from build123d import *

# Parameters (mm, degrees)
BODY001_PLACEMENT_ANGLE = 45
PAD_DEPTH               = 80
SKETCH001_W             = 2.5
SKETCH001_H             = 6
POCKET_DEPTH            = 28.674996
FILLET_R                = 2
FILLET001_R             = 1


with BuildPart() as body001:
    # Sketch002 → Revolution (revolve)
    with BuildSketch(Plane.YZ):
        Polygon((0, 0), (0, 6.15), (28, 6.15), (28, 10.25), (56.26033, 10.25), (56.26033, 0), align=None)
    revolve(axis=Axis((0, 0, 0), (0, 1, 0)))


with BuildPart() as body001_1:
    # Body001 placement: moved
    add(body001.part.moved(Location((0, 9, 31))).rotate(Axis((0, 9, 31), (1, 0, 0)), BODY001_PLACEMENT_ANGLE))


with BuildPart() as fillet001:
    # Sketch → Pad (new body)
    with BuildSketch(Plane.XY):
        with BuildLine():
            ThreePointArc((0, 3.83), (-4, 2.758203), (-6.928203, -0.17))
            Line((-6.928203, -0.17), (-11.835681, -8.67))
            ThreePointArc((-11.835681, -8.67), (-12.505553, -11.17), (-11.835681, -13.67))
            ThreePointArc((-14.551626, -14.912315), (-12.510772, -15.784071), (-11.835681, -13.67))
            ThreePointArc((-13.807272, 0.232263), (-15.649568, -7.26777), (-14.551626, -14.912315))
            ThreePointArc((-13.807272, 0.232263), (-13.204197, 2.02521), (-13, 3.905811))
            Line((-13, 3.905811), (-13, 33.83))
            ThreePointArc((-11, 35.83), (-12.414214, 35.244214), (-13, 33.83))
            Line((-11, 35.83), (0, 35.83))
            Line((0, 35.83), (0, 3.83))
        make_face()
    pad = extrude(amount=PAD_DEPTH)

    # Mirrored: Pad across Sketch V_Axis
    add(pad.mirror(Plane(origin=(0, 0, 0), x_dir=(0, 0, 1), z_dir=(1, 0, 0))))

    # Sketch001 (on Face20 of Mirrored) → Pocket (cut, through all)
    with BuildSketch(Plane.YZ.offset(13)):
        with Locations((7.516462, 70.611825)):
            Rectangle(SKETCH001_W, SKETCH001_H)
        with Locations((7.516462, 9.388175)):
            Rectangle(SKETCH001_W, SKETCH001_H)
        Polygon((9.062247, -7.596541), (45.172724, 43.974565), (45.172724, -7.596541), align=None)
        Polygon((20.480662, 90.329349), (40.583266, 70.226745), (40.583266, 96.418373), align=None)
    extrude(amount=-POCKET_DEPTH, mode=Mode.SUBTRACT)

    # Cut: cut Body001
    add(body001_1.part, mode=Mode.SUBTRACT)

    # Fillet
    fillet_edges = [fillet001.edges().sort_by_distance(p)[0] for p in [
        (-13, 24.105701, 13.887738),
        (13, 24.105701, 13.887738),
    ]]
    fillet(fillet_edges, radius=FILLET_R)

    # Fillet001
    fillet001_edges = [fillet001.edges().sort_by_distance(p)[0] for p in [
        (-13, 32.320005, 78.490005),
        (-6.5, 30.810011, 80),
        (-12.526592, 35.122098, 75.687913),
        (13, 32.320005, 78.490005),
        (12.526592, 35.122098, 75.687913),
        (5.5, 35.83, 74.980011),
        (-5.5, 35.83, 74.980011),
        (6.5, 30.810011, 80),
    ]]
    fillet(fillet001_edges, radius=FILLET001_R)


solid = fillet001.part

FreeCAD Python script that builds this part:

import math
import FreeCAD as App
import Part
import Sketcher
Q = App.Units.Quantity


def edges_at(feature, points):
    """Names of the edges that pass closest to the given points."""
    edges = feature.Shape.Edges
    near = lambda p: min(range(len(edges)), key=lambda i: edges[i].distToShape(Part.Vertex(*p))[0])
    return sorted({f"Edge{near(p) + 1}" for p in points})

doc = App.newDocument("Part")
body = doc.addObject("PartDesign::Body", "Body")

sketch1 = body.newObject("Sketcher::SketchObject", "Sketch")
sketch1.AttachmentSupport = (doc.getObject("YZ_Plane"), [""])
sketch1.MapMode = "FlatFace"
sketch1.addGeometry(Part.LineSegment(App.Vector(0, 6.15, 0), App.Vector(0, 0, 0)), False)
sketch1.addGeometry(Part.LineSegment(App.Vector(0, 0, 0), App.Vector(56.26033, 0, 0)), False)
sketch1.addGeometry(Part.LineSegment(App.Vector(56.26033, 0, 0), App.Vector(56.26033, 10.25, 0)), False)
sketch1.addGeometry(Part.LineSegment(App.Vector(56.26033, 10.25, 0), App.Vector(28, 10.25, 0)), False)
sketch1.addGeometry(Part.LineSegment(App.Vector(28, 10.25, 0), App.Vector(28, 6.15, 0)), False)
sketch1.addGeometry(Part.LineSegment(App.Vector(28, 6.15, 0), App.Vector(0, 6.15, 0)), False)
sketch1.addConstraint(Sketcher.Constraint("Coincident", 0, 2, 1, 1))
sketch1.addConstraint(Sketcher.Constraint("Coincident", 1, 2, 2, 1))
sketch1.addConstraint(Sketcher.Constraint("Coincident", 2, 2, 3, 1))
sketch1.addConstraint(Sketcher.Constraint("Coincident", 3, 2, 4, 1))
sketch1.addConstraint(Sketcher.Constraint("Coincident", 4, 2, 5, 1))
sketch1.addConstraint(Sketcher.Constraint("Coincident", 5, 2, 0, 1))
sketch1.addConstraint(Sketcher.Constraint("Vertical", 0))
sketch1.addConstraint(Sketcher.Constraint("Horizontal", 1))
sketch1.addConstraint(Sketcher.Constraint("Vertical", 2))
sketch1.addConstraint(Sketcher.Constraint("Horizontal", 3))
sketch1.addConstraint(Sketcher.Constraint("Vertical", 4))
sketch1.addConstraint(Sketcher.Constraint("Horizontal", 5))
sketch1.addConstraint(Sketcher.Constraint("Coincident", 0, 2, -1, 1))
sketch1.addConstraint(Sketcher.Constraint("DistanceX", 5, 2, 5, 1, Q("28 mm")))
sketch1.addConstraint(Sketcher.Constraint("DistanceY", 4, 2, 4, 1, Q("4.1 mm")))
sketch1.addConstraint(Sketcher.Constraint("DistanceY", 0, 2, 0, 1, Q("6.15 mm")))
sketch1.addConstraint(Sketcher.Constraint("DistanceX", 1, 1, 1, 2, Q("56.26033 mm")))
revolution = body.newObject("PartDesign::Revolution", "Revolution")
revolution.Profile = sketch1
revolution.ReferenceAxis = (sketch1, ["H_Axis"])
revolution.Angle = 360
body2 = doc.addObject("PartDesign::Body", "Body001")
doc.recompute()

body.Placement = App.Placement(App.Vector(0, 9, 31), App.Rotation(App.Vector(1, 0, 0), 45))
boolean = body2.newObject("PartDesign::Boolean", "Boolean")
boolean.Type = "Fuse"
boolean.addObjects([body])
body3 = doc.addObject("PartDesign::Body", "Body002")

sketch2 = body3.newObject("Sketcher::SketchObject", "Sketch001")
sketch2.AttachmentSupport = (doc.getObject("XY_Plane002"), [""])
sketch2.MapMode = "FlatFace"
sketch2.addGeometry(Part.ArcOfCircle(Part.Circle(App.Vector(0.000001, -4.170001, 0), App.Vector(0, 0, 1), 8.000001), math.radians(90.000004), math.radians(149.999998)), False)
sketch2.addGeometry(Part.LineSegment(App.Vector(0, 3.83, 0), App.Vector(0, 35.83, 0)), False)
sketch2.addGeometry(Part.LineSegment(App.Vector(0, 35.83, 0), App.Vector(-11, 35.83, 0)), False)
sketch2.addGeometry(Part.ArcOfCircle(Part.Circle(App.Vector(-11.000001, 33.830001, 0), App.Vector(0, 0, 1), 1.999999), math.radians(89.999957), math.radians(180.000043)), False)
sketch2.addGeometry(Part.LineSegment(App.Vector(-13, 33.83, 0), App.Vector(-13, 3.905811, 0)), False)
sketch2.addGeometry(Part.ArcOfCircle(Part.Circle(App.Vector(-21.76199, 3.905808, 0), App.Vector(0, 0, 1), 8.76199), math.radians(-24.787824), math.radians(0.000021)), False)
sketch2.addGeometry(Part.ArcOfCircle(Part.Circle(App.Vector(4.587165, -8.262403, 0), App.Vector(0, 0, 1), 20.261161), math.radians(155.212213), math.radians(199.160156)), False)
sketch2.addGeometry(Part.ArcOfCircle(Part.Circle(App.Vector(-13.134719, -14.42, 0), App.Vector(0, 0, 1), 1.5), math.radians(-160.839831), math.radians(30.000001)), False)
sketch2.addGeometry(Part.ArcOfCircle(Part.Circle(App.Vector(-7.505547, -11.17, 0), App.Vector(0, 0, 1), 5.000006), math.radians(150.000042), math.radians(209.999958)), False)
sketch2.addGeometry(Part.LineSegment(App.Vector(-11.835681, -8.67, 0), App.Vector(-6.928203, -0.17, 0)), False)
sketch2.addConstraint(Sketcher.Constraint("Coincident", 0, 1, 1, 1))
sketch2.addConstraint(Sketcher.Constraint("Coincident", 1, 2, 2, 1))
sketch2.addConstraint(Sketcher.Constraint("Tangent", 2, 2, 3, 1))
sketch2.addConstraint(Sketcher.Constraint("Tangent", 3, 2, 4, 1))
sketch2.addConstraint(Sketcher.Constraint("Tangent", 4, 2, 5, 2))
sketch2.addConstraint(Sketcher.Constraint("Tangent", 5, 1, 6, 1))
sketch2.addConstraint(Sketcher.Constraint("Tangent", 6, 2, 7, 1))
sketch2.addConstraint(Sketcher.Constraint("Tangent", 7, 2, 8, 2))
sketch2.addConstraint(Sketcher.Constraint("Tangent", 8, 1, 9, 1))
sketch2.addConstraint(Sketcher.Constraint("Tangent", 9, 2, 0, 2))
sketch2.addConstraint(Sketcher.Constraint("Vertical", 1))
sketch2.addConstraint(Sketcher.Constraint("Horizontal", 2))
sketch2.addConstraint(Sketcher.Constraint("Vertical", 4))
sketch2.addConstraint(Sketcher.Constraint("PointOnObject", 0, 3, -2))
sketch2.addConstraint(Sketcher.Constraint("PointOnObject", 0, 1, -2))
sketch2.addConstraint(Sketcher.Constraint("Vertical", 7, 2, 8, 1))
sketch2.addConstraint(Sketcher.Constraint("Radius", 0, Q("8.000001 mm")))
sketch2.addConstraint(Sketcher.Constraint("Radius", 3, Q("1.999999 mm")))
sketch2.addConstraint(Sketcher.Constraint("Radius", 7, Q("1.5 mm")))
sketch2.addConstraint(Sketcher.Constraint("DistanceX", 2, 2, 2, 1, Q("11 mm")))
sketch2.addConstraint(Sketcher.Constraint("DistanceY", 1, 1, 1, 2, Q("32 mm")))
sketch2.addConstraint(Sketcher.Constraint("Angle", 9, Q("59.999996 deg")))
sketch2.addConstraint(Sketcher.Constraint("DistanceY", 8, 3, 0, 3, Q("6.999999 mm")))
sketch2.addConstraint(Sketcher.Constraint("DistanceY", 7, 2, 8, 1, Q("5 mm")))
sketch2.addConstraint(Sketcher.Constraint("DistanceY", 0, 3, -1, 1, Q("4.170001 mm")))
sketch2.addConstraint(Sketcher.Constraint("Radius", 5, Q("8.76199 mm")))
sketch2.addConstraint(Sketcher.Constraint("Radius", 6, Q("20.261161 mm")))
sketch2.addConstraint(Sketcher.Constraint("DistanceY", 4, 2, 4, 1, Q("29.924189 mm")))
pad1 = body3.newObject("PartDesign::Pad", "Pad")
pad1.Profile = sketch2
pad1.Length = 80
doc.recompute()

mirrored = body3.newObject("PartDesign::Mirrored", "Mirrored")
mirrored.Originals = [pad1]
mirrored.MirrorPlane = (doc.getObject("YZ_Plane002"), [""])
body3.Tip = mirrored

sketch3 = body3.newObject("Sketcher::SketchObject", "Sketch002")
sketch3.AttachmentSupport = (doc.getObject("YZ_Plane002"), [""])
sketch3.MapMode = "FlatFace"
sketch3.AttachmentOffset = App.Placement(App.Vector(0, 0, 13), App.Rotation())
sketch3.addGeometry(Part.LineSegment(App.Vector(6.266462, 73.611825, 0), App.Vector(6.266462, 67.611825, 0)), False)
sketch3.addGeometry(Part.LineSegment(App.Vector(6.266462, 67.611825, 0), App.Vector(8.766462, 67.611825, 0)), False)
sketch3.addGeometry(Part.LineSegment(App.Vector(8.766462, 67.611825, 0), App.Vector(8.766462, 73.611825, 0)), False)
sketch3.addGeometry(Part.LineSegment(App.Vector(8.766462, 73.611825, 0), App.Vector(6.266462, 73.611825, 0)), False)
sketch3.addGeometry(Part.LineSegment(App.Vector(6.266462, 12.388175, 0), App.Vector(6.266462, 6.388175, 0)), False)
sketch3.addGeometry(Part.LineSegment(App.Vector(6.266462, 6.388175, 0), App.Vector(8.766462, 6.388175, 0)), False)
sketch3.addGeometry(Part.LineSegment(App.Vector(8.766462, 6.388175, 0), App.Vector(8.766462, 12.388175, 0)), False)
sketch3.addGeometry(Part.LineSegment(App.Vector(8.766462, 12.388175, 0), App.Vector(6.266462, 12.388175, 0)), False)
sketch3.addGeometry(Part.LineSegment(App.Vector(45.172724, 43.974565, 0), App.Vector(9.062247, -7.596541, 0)), False)
sketch3.addGeometry(Part.LineSegment(App.Vector(9.062247, -7.596541, 0), App.Vector(45.172724, -7.596541, 0)), False)
sketch3.addGeometry(Part.LineSegment(App.Vector(45.172724, -7.596541, 0), App.Vector(45.172724, 43.974565, 0)), False)
sketch3.addGeometry(Part.LineSegment(App.Vector(20.480662, 90.329349, 0), App.Vector(40.583266, 70.226745, 0)), False)
sketch3.addGeometry(Part.LineSegment(App.Vector(40.583266, 70.226745, 0), App.Vector(40.583266, 96.418373, 0)), False)
sketch3.addGeometry(Part.LineSegment(App.Vector(40.583266, 96.418373, 0), App.Vector(20.480662, 90.329349, 0)), False)
sketch3.addConstraint(Sketcher.Constraint("Coincident", 0, 2, 1, 1))
sketch3.addConstraint(Sketcher.Constraint("Coincident", 1, 2, 2, 1))
sketch3.addConstraint(Sketcher.Constraint("Coincident", 2, 2, 3, 1))
sketch3.addConstraint(Sketcher.Constraint("Coincident", 3, 2, 0, 1))
sketch3.addConstraint(Sketcher.Constraint("Coincident", 4, 2, 5, 1))
sketch3.addConstraint(Sketcher.Constraint("Coincident", 5, 2, 6, 1))
sketch3.addConstraint(Sketcher.Constraint("Coincident", 6, 2, 7, 1))
sketch3.addConstraint(Sketcher.Constraint("Coincident", 7, 2, 4, 1))
sketch3.addConstraint(Sketcher.Constraint("Coincident", 8, 2, 9, 1))
sketch3.addConstraint(Sketcher.Constraint("Coincident", 9, 2, 10, 1))
sketch3.addConstraint(Sketcher.Constraint("Coincident", 10, 2, 8, 1))
sketch3.addConstraint(Sketcher.Constraint("Coincident", 11, 2, 12, 1))
sketch3.addConstraint(Sketcher.Constraint("Coincident", 12, 2, 13, 1))
sketch3.addConstraint(Sketcher.Constraint("Coincident", 13, 2, 11, 1))
sketch3.addConstraint(Sketcher.Constraint("Vertical", 0))
sketch3.addConstraint(Sketcher.Constraint("Horizontal", 1))
sketch3.addConstraint(Sketcher.Constraint("Vertical", 2))
sketch3.addConstraint(Sketcher.Constraint("Horizontal", 3))
sketch3.addConstraint(Sketcher.Constraint("Vertical", 4))
sketch3.addConstraint(Sketcher.Constraint("Horizontal", 5))
sketch3.addConstraint(Sketcher.Constraint("Vertical", 6))
sketch3.addConstraint(Sketcher.Constraint("Horizontal", 7))
sketch3.addConstraint(Sketcher.Constraint("Horizontal", 9))
sketch3.addConstraint(Sketcher.Constraint("Vertical", 10))
sketch3.addConstraint(Sketcher.Constraint("Vertical", 12))
sketch3.addConstraint(Sketcher.Constraint("Vertical", 3, 2, 4, 2))
sketch3.addConstraint(Sketcher.Constraint("Vertical", 2, 2, 5, 2))
sketch3.addConstraint(Sketcher.Constraint("Equal", 2, 4))
sketch3.addConstraint(Sketcher.Constraint("DistanceY", 0, 2, 0, 1, Q("6 mm")))
sketch3.addConstraint(Sketcher.Constraint("Angle", 8, Q("-125 deg")))
sketch3.addConstraint(Sketcher.Constraint("Angle", 11, Q("-45 deg")))
sketch3.addConstraint(Sketcher.Constraint("DistanceX", 1, 1, 1, 2, Q("2.5 mm")))
sketch3.addConstraint(Sketcher.Constraint("DistanceY", 12, 1, 12, 2, Q("26.191628 mm")))
sketch3.addConstraint(Sketcher.Constraint("DistanceX", 2, 2, 13, 2, Q("11.7142 mm")))
sketch3.addConstraint(Sketcher.Constraint("DistanceX", 9, 1, 9, 2, Q("36.110477 mm")))
sketch3.addConstraint(Sketcher.Constraint("DistanceX", -1, 1, 0, 2, Q("6.266462 mm")))
sketch3.addConstraint(Sketcher.Constraint("DistanceY", 8, 2, -1, 1, Q("7.596541 mm")))
sketch3.addConstraint(Sketcher.Constraint("DistanceY", -1, 1, 13, 2, Q("90.329349 mm")))
sketch3.addConstraint(Sketcher.Constraint("DistanceY", 4, 2, 0, 2, Q("61.22365 mm")))
sketch3.addConstraint(Sketcher.Constraint("DistanceX", 5, 2, 9, 2, Q("36.406262 mm")))
sketch3.addConstraint(Sketcher.Constraint("DistanceY", 10, 2, 1, 2, Q("23.63726 mm")))
sketch3.addConstraint(Sketcher.Constraint("DistanceX", 11, 2, 10, 2, Q("4.589458 mm")))
pocket1 = body3.newObject("PartDesign::Pocket", "Pocket")
pocket1.Profile = sketch3
pocket1.Type = "ThroughAll"
doc.recompute()

boolean2 = body3.newObject("PartDesign::Boolean", "Boolean001")
boolean2.Type = "Cut"
boolean2.addObjects([body2])
doc.recompute()

fillet = body3.newObject("PartDesign::Fillet", "Fillet")
fillet.Base = (boolean2, edges_at(boolean2, [(-13, 24.106, 13.888), (13, 24.106, 13.888)]))
fillet.Radius = 2
doc.recompute()

fillet2 = body3.newObject("PartDesign::Fillet", "Fillet001")
fillet2.Base = (fillet, edges_at(fillet, [
    (-13, 32.32, 78.49),
    (0, 30.81, 80),
    (-12.527, 35.122, 75.688),
    (13, 32.32, 78.49),
    (12.527, 35.122, 75.688),
    (0, 35.83, 74.98),
    (0, 35.83, 74.98),
    (0, 30.81, 80),
]))
fillet2.Radius = 1

doc.recompute()
